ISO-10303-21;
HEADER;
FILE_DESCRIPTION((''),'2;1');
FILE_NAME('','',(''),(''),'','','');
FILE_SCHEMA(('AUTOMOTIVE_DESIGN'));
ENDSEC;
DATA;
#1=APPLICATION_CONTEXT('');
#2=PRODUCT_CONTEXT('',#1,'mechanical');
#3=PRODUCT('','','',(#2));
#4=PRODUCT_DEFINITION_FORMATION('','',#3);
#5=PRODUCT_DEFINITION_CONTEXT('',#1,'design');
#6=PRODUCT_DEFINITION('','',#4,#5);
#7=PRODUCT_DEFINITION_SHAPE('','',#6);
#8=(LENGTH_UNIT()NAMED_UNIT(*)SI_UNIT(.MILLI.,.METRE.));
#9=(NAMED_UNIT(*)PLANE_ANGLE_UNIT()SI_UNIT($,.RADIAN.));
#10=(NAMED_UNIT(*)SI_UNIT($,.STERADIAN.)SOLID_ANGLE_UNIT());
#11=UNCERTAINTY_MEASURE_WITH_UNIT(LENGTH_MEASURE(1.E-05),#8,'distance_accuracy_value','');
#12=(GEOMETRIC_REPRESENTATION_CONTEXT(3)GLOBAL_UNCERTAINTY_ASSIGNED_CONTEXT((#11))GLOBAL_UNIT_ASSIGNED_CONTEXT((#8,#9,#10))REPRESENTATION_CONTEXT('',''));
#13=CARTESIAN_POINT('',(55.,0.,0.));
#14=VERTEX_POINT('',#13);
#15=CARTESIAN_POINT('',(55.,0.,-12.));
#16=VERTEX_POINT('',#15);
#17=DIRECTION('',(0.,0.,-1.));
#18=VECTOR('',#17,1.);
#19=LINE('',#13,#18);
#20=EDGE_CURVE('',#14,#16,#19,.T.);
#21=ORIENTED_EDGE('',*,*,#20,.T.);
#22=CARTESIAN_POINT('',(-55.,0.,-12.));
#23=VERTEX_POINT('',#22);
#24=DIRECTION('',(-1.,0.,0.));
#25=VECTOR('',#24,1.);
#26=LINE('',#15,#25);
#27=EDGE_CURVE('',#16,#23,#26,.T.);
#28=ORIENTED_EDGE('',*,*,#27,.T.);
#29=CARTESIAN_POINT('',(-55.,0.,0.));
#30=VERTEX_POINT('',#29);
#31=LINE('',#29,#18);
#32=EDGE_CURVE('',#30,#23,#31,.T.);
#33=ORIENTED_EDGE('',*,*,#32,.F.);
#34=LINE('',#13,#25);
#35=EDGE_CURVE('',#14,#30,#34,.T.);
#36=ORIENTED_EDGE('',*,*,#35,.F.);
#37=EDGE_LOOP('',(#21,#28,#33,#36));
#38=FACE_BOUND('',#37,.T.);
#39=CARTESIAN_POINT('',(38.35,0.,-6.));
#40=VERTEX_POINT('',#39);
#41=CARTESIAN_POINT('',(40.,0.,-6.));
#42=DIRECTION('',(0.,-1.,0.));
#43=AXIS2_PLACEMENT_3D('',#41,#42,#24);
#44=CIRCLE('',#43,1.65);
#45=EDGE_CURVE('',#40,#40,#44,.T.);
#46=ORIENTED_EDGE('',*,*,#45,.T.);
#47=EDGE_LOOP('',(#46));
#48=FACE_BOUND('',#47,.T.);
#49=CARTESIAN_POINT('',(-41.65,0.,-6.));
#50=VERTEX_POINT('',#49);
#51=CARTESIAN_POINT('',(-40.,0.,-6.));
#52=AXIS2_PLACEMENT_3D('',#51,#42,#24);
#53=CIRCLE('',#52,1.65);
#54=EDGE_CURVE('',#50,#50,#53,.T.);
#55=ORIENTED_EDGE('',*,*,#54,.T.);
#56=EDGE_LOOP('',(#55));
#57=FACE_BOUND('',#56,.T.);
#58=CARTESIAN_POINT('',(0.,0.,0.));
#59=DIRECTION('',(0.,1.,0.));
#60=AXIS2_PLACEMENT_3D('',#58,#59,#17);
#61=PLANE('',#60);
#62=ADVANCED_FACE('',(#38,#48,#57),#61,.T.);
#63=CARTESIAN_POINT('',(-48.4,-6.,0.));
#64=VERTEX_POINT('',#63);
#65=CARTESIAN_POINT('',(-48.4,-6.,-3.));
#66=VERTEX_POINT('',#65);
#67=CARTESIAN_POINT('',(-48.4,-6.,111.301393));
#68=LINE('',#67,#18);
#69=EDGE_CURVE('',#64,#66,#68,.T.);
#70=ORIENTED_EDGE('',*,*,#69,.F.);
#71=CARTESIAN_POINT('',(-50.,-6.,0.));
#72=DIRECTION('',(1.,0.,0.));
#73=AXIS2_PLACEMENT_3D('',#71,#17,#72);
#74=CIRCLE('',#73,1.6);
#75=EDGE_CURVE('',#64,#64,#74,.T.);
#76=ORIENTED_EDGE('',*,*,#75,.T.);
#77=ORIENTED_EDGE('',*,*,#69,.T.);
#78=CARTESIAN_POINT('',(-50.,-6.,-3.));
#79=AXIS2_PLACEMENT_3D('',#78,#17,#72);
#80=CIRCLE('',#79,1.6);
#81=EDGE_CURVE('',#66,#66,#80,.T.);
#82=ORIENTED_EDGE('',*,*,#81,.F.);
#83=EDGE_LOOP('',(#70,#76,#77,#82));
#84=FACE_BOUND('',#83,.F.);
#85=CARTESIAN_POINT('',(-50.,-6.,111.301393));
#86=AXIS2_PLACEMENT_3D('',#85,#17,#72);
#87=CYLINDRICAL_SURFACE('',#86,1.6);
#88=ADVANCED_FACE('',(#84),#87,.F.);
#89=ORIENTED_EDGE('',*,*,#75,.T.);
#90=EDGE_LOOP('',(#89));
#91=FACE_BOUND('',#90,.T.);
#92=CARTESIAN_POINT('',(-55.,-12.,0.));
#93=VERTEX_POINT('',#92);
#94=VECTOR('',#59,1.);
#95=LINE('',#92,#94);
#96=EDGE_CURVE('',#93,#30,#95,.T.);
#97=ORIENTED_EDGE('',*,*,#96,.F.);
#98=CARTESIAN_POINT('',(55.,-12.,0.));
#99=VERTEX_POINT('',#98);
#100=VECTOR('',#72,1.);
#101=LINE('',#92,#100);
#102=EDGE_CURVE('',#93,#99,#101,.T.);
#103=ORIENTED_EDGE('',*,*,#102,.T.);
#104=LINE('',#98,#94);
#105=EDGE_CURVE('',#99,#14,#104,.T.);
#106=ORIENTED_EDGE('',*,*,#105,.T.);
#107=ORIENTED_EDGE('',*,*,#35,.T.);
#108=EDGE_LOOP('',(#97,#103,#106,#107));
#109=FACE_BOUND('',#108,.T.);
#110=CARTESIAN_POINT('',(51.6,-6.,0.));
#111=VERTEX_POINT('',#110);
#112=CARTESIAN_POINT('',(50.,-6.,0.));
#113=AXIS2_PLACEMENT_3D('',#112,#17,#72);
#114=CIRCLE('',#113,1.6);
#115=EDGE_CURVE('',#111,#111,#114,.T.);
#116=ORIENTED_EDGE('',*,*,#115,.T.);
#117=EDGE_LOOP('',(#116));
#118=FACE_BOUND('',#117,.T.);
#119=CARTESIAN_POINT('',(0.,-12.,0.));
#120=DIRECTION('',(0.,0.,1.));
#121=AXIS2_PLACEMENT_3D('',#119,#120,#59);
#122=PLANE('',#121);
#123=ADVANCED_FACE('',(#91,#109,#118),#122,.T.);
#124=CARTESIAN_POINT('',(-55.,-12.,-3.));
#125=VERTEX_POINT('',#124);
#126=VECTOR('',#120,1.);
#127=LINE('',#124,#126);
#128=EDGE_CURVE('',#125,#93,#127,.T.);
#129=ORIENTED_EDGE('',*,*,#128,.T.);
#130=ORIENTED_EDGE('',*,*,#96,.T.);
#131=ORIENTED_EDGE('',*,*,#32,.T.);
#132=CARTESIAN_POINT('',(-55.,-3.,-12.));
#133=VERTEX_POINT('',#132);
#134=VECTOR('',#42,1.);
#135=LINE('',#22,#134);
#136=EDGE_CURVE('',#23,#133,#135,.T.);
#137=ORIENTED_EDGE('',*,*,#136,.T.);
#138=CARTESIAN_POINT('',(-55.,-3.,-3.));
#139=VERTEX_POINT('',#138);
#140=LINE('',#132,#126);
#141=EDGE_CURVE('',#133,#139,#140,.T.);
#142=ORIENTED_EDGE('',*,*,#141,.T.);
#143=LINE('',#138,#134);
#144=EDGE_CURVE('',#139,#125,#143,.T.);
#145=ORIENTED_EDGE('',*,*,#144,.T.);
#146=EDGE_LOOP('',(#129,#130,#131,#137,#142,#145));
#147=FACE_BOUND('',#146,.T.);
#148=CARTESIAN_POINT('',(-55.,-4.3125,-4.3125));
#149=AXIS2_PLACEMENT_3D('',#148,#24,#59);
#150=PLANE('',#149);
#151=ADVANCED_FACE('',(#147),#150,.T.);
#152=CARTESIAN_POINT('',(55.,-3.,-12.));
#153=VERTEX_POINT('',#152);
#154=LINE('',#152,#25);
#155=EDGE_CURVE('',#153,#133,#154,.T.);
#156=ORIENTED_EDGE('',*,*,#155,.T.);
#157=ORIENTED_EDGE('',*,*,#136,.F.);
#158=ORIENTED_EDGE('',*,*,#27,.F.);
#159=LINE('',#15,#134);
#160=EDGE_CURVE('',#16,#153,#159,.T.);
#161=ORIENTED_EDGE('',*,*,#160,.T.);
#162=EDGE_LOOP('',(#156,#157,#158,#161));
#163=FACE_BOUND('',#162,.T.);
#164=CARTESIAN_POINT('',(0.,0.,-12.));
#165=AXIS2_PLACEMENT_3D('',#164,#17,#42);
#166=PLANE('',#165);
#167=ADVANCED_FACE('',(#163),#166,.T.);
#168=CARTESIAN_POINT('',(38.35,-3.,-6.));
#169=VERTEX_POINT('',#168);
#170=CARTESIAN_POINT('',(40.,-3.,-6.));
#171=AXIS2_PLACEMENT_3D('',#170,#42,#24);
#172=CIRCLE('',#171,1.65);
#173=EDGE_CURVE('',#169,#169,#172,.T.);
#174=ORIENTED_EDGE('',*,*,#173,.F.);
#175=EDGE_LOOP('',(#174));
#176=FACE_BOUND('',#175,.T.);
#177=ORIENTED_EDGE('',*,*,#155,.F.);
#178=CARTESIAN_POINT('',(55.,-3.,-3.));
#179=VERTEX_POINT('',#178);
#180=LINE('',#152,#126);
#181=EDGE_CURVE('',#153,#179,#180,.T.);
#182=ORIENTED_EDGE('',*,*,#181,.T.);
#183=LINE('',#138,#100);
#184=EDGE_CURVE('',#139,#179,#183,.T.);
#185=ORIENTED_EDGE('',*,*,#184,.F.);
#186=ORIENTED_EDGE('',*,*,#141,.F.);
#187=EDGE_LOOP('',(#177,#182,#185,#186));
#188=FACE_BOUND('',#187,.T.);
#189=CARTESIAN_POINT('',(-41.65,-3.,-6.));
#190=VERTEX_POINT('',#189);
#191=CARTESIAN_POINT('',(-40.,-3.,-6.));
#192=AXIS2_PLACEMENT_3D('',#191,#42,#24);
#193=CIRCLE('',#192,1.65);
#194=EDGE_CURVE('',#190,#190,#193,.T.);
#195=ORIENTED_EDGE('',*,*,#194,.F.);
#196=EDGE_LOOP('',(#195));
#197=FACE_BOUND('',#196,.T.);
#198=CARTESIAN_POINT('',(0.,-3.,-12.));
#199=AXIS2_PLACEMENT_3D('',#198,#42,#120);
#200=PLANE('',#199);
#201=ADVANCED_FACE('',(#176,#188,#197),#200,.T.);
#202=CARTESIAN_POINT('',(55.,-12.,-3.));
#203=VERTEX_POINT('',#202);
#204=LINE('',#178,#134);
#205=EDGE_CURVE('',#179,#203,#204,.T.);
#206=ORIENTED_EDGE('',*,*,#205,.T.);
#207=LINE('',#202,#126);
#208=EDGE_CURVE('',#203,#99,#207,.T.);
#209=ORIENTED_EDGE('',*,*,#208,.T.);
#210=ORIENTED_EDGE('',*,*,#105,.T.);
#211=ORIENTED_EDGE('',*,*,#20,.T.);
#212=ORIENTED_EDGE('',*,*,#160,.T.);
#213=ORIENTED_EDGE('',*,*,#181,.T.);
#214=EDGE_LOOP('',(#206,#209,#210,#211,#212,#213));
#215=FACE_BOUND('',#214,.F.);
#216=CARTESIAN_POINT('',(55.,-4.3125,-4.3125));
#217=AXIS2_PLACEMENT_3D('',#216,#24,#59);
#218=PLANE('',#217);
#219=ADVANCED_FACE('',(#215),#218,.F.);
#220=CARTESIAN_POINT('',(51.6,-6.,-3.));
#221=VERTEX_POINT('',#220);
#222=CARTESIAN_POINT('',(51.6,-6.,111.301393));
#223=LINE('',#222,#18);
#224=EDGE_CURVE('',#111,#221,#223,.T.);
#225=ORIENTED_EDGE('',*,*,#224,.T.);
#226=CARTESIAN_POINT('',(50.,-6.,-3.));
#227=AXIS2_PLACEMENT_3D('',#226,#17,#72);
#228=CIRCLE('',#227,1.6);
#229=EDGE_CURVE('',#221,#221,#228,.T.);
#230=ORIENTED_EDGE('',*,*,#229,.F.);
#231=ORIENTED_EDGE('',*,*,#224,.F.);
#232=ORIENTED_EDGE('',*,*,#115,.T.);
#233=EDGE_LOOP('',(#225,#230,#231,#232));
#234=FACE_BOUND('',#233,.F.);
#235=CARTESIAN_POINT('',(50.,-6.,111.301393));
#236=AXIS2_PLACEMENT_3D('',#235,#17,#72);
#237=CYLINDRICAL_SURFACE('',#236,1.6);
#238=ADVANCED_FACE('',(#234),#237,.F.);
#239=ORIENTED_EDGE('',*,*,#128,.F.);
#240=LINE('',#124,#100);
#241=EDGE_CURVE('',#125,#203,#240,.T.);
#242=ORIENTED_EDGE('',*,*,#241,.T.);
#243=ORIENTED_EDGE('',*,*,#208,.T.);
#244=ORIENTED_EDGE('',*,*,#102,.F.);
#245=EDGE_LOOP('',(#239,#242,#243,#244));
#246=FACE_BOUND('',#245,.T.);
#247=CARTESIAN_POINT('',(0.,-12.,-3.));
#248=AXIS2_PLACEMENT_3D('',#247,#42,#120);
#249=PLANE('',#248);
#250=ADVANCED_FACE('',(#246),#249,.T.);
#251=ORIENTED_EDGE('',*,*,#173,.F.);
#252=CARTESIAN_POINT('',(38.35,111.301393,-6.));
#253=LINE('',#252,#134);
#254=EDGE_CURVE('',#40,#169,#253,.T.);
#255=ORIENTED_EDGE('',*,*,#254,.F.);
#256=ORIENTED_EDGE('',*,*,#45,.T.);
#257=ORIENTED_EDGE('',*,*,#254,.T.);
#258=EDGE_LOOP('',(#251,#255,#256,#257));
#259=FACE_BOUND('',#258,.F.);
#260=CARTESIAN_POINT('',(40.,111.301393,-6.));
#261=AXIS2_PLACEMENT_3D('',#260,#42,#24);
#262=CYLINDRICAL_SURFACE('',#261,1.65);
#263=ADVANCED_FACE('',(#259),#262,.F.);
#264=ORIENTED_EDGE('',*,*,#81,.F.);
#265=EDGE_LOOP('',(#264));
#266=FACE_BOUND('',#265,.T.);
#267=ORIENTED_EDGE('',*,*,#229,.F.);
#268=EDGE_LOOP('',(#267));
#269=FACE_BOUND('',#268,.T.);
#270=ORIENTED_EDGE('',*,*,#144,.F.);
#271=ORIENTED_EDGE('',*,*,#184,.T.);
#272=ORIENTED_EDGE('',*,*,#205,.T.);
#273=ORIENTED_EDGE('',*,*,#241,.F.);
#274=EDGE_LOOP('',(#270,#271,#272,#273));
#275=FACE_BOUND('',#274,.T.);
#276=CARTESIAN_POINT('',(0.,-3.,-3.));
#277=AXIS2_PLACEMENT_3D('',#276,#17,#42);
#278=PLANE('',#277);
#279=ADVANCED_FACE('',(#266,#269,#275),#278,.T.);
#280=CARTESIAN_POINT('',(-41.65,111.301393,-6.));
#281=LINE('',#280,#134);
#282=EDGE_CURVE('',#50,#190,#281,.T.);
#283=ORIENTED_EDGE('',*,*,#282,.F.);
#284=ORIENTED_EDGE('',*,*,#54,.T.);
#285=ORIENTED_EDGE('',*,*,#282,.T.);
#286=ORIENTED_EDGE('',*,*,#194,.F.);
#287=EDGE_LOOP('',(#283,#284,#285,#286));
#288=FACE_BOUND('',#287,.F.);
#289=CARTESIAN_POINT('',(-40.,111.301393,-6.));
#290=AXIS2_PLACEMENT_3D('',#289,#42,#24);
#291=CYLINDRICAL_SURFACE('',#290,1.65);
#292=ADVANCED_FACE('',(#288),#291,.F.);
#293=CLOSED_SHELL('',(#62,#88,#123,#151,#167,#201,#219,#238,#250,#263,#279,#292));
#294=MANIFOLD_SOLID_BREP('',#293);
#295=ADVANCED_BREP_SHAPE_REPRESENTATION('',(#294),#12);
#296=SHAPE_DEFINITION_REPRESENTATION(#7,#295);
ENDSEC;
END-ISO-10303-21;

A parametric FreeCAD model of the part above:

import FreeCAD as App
import Part
import Sketcher
from FreeCAD import Vector


def add_polygon(sketch, points):
    """Adds a closed chain of lines whose ends are joined by coincident constraints."""
    first, n = sketch.GeometryCount, len(points)
    for a, b in zip(points, points[1:] + points[:1]):
        sketch.addGeometry(Part.LineSegment(App.Vector(*a, 0), App.Vector(*b, 0)), False)
    for i in range(n):
        sketch.addConstraint(Sketcher.Constraint("Coincident", first + i, 2, first + (i + 1) % n, 1))

doc = App.newDocument("Part")
body = doc.addObject("PartDesign::Body", "Body")

# Sketch on YZ plane
sketch1 = body.newObject("Sketcher::SketchObject", "Sketch")
sketch1.AttachmentSupport = (doc.getObject("YZ_Plane"), [""])
sketch1.MapMode = "FlatFace"
add_polygon(sketch1, [(-12, 0), (0, 0), (0, 12), (-3, 12), (-3, 3), (-12, 3)])  # lines 0-5
sketch1.addConstraint(Sketcher.Constraint("Horizontal", 0))
sketch1.addConstraint(Sketcher.Constraint("Vertical", 1))
sketch1.addConstraint(Sketcher.Constraint("Horizontal", 2))
sketch1.addConstraint(Sketcher.Constraint("Vertical", 3))
sketch1.addConstraint(Sketcher.Constraint("Horizontal", 4))
sketch1.addConstraint(Sketcher.Constraint("Vertical", 5))
sketch1.addConstraint(Sketcher.Constraint("Coincident", 0, 2, -1, 1))
sketch1.addConstraint(Sketcher.Constraint("Equal", 0, 1))
sketch1.addConstraint(Sketcher.Constraint("Equal", 4, 3))
sketch1.addConstraint(Sketcher.Constraint("DistanceX", 0, 1, 0, 2, 12.0))
sketch1.addConstraint(Sketcher.Constraint("DistanceX", 2, 2, 2, 1, 3.0))
pad1 = body.newObject("PartDesign::Pad", "Pad")
pad1.Profile = sketch1
pad1.Length = 110
pad1.Midplane = True

# Sketch on XY plane
sketch2 = body.newObject("Sketcher::SketchObject", "Sketch001")
sketch2.AttachmentSupport = (doc.getObject("XY_Plane"), [""])
sketch2.MapMode = "FlatFace"
sketch2.addGeometry(Part.Circle(Vector(-50, -6, 0), Vector(0, 0, 1), 1.6), False)
sketch2.addGeometry(Part.Circle(Vector(50, -6, 0), Vector(0, 0, 1), 1.6), False)
sketch2.addConstraint(Sketcher.Constraint("Equal", 0, 1))
sketch2.addConstraint(Sketcher.Constraint("Symmetric", 0, 3, 1, 3, -2))
sketch2.addConstraint(Sketcher.Constraint("Diameter", 0, 3.2))
sketch2.addConstraint(Sketcher.Constraint("DistanceX", 0, 3, -1, 1, 50.0))
sketch2.addConstraint(Sketcher.Constraint("DistanceY", 0, 3, -1, 1, 6.0))
doc.recompute()
hole = body.newObject("PartDesign::Hole", "Hole")
hole.Profile = sketch2
hole.ThreadType = "None"
hole.Diameter = 3.2
hole.DepthType = "ThroughAll"
hole.Reversed = True

# Sketch on XZ plane
sketch3 = body.newObject("Sketcher::SketchObject", "Sketch002")
sketch3.AttachmentSupport = (doc.getObject("XZ_Plane"), [""])
sketch3.MapMode = "FlatFace"
sketch3.addGeometry(Part.Circle(Vector(-40, 6, 0), Vector(0, 0, 1), 1.6), False)
sketch3.addGeometry(Part.Circle(Vector(40, 6, 0), Vector(0, 0, 1), 1.6), False)
sketch3.addConstraint(Sketcher.Constraint("Equal", 0, 1))
sketch3.addConstraint(Sketcher.Constraint("Symmetric", 0, 3, 1, 3, -2))
sketch3.addConstraint(Sketcher.Constraint("Diameter", 0, 3.3))
sketch3.addConstraint(Sketcher.Constraint("DistanceX", 0, 3, -1, 1, 40.0))
sketch3.addConstraint(Sketcher.Constraint("DistanceY", -1, 1, 0, 3, 6.0))
doc.recompute()
hole2 = body.newObject("PartDesign::Hole", "Hole001")
hole2.Profile = sketch3
hole2.ThreadType = "None"
hole2.Diameter = 3.3
hole2.DepthType = "ThroughAll"
hole2.Reversed = True
body2 = doc.addObject("PartDesign::Body", "Body001")
doc.recompute()

body.Placement = App.Placement(Vector(0, 0, 0), App.Rotation(Vector(-1, 0, 0), 180))
boolean = body2.newObject("PartDesign::Boolean", "Boolean")
boolean.Type = "Fuse"
boolean.addObjects([body])
body3 = doc.addObject("PartDesign::Body", "Body002")
doc.recompute()

body2.Placement = App.Placement(Vector(0, 0, 0), App.Rotation(Vector(0, 0, 1), 180))
boolean2 = body3.newObject("PartDesign::Boolean", "Boolean001")
boolean2.Type = "Fuse"
boolean2.addObjects([body2])

doc.recompute()
